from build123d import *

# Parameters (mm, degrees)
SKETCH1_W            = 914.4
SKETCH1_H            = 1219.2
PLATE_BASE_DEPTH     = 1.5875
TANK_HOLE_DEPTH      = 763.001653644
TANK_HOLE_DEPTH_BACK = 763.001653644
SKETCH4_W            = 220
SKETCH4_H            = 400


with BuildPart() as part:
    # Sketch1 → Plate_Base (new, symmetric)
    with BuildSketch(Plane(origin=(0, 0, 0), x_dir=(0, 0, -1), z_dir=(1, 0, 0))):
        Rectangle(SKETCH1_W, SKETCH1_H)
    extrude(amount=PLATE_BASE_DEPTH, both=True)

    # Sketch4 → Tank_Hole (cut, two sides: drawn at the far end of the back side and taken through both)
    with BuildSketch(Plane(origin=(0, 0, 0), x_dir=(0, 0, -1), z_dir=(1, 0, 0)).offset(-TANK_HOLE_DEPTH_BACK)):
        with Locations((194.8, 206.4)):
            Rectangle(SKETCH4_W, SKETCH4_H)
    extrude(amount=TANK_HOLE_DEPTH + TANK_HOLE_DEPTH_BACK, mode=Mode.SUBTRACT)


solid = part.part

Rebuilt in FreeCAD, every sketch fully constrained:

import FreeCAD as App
import Part
import Sketcher
from FreeCAD import Vector
Q = App.Units.Quantity


def add_polygon(sketch, points):
    """Adds a closed chain of lines whose ends are joined by coincident constraints."""
    first, n = sketch.GeometryCount, len(points)
    for a, b in zip(points, points[1:] + points[:1]):
        sketch.addGeometry(Part.LineSegment(App.Vector(*a, 0), App.Vector(*b, 0)), False)
    for i in range(n):
        sketch.addConstraint(Sketcher.Constraint("Coincident", first + i, 2, first + (i + 1) % n, 1))

doc = App.newDocument("Part")
body = doc.addObject("PartDesign::Body", "Body")

# Sketch on YZ plane
sketch1 = doc.addObject("Sketcher::SketchObject", "Sketch")
body.addObject(sketch1)
sketch1.AttachmentSupport = (doc.YZ_Plane, [""])
sketch1.MapMode = "FlatFace"
add_polygon(sketch1, [(610, 457), (-610, 457), (-610, -457), (610, -457)])  # lines 0-3
sketch1.addConstraint([
    Sketcher.Constraint("Horizontal", 0),
    Sketcher.Constraint("Vertical", 1),
    Sketcher.Constraint("Horizontal", 2),
    Sketcher.Constraint("Vertical", 3),
    Sketcher.Constraint("Symmetric", 0, 2, 2, 2, -1, 1),
    Sketcher.Constraint("DistanceX", 0, 2, 0, 1, Q("48 in")),
    Sketcher.Constraint("DistanceY", 1, 2, 1, 1, Q("36 in")),
])
pad1 = doc.addObject("PartDesign::Pad", "Pad")
body.addObject(pad1)
pad1.Profile = sketch1
pad1.Length = Q("0.125 in")
pad1.Midplane = True

# Sketch on YZ plane
sketch2 = doc.addObject("Sketcher::SketchObject", "Sketch001")
body.addObject(sketch2)
sketch2.AttachmentSupport = (doc.YZ_Plane, [""])
sketch2.MapMode = "FlatFace"
add_polygon(sketch2, [(406, -85), (6, -85), (6, -305), (406, -305)])  # lines 0-3
sketch2.addConstraint([
    Sketcher.Constraint("Horizontal", 0),
    Sketcher.Constraint("Vertical", 1),
    Sketcher.Constraint("Horizontal", 2),
    Sketcher.Constraint("Vertical", 3),
    Sketcher.Constraint("DistanceY", 1, 2, -1, 1, Q("12 in")),
    Sketcher.Constraint("DistanceX", -1, 1, 2, 2, Q("16 in")),
    Sketcher.Constraint("DistanceX", 0, 2, 0, 1, Q("400 mm")),
    Sketcher.Constraint("DistanceY", 1, 2, 1, 1, Q("220 mm")),
])
pocket1 = doc.addObject("PartDesign::Pocket", "Pocket")
body.addObject(pocket1)
pocket1.Profile = sketch2
pocket1.Type = "ThroughAll"
pocket1.Midplane = True

doc.recompute()
